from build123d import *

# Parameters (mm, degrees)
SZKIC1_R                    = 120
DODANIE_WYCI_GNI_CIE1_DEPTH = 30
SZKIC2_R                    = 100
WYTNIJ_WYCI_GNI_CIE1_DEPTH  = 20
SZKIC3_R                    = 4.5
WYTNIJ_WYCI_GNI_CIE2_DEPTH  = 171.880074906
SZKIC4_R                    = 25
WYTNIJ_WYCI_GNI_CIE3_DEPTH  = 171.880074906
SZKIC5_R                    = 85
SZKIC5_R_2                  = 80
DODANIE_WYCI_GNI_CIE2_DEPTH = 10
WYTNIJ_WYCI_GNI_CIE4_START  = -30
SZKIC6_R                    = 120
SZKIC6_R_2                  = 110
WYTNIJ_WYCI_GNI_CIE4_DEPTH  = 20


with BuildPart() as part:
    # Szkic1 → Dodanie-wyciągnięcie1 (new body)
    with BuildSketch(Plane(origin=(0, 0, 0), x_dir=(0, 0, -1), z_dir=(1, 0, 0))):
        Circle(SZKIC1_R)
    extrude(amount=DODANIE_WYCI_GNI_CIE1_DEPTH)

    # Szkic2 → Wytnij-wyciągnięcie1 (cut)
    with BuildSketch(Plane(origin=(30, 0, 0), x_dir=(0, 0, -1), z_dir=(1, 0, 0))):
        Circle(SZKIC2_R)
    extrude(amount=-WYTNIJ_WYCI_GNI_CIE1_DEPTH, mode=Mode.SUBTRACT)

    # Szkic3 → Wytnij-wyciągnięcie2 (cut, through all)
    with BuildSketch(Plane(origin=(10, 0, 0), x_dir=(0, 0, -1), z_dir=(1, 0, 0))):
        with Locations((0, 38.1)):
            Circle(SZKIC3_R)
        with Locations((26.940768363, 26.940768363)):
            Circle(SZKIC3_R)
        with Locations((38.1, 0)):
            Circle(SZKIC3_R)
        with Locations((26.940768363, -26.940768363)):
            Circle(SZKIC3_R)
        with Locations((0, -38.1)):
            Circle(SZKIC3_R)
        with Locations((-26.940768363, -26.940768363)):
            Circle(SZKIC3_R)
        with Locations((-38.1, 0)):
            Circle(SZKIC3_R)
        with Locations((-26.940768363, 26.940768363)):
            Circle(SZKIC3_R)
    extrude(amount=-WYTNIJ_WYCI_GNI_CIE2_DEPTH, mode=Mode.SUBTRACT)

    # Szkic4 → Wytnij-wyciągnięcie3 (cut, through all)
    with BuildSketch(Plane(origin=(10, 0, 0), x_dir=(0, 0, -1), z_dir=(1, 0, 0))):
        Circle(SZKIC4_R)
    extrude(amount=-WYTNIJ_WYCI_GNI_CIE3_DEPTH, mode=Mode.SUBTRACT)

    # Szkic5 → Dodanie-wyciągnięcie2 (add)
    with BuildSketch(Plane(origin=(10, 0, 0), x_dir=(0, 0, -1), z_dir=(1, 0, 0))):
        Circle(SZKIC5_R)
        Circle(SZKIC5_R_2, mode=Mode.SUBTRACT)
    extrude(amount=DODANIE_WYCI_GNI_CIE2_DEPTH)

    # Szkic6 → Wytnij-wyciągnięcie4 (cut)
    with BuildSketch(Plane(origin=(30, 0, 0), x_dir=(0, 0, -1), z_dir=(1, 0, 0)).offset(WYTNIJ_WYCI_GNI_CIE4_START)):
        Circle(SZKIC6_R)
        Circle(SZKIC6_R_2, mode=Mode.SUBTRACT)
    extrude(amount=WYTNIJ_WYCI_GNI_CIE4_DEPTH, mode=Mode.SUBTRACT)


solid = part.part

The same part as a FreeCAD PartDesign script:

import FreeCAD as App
import Part
import Sketcher

doc = App.newDocument("Part")
params = doc.addObject("Spreadsheet::Sheet", "Params")
for row, (alias, value) in enumerate([
    ("sketch1_diameter", "240 mm"),
    ("pad1_length", "30 mm"),
    ("sketch2_diameter", "200 mm"),
    ("pocket1_length", "20 mm"),
    ("sketch3_diameter", "9 mm"),
    ("sketch4_diameter", "50 mm"),
    ("sketch5_diameter", "170 mm"),
    ("sketch5_diameter2", "160 mm"),
    ("pad2_length", "10 mm"),
    ("sketch6_diameter", "240 mm"),
    ("sketch6_diameter2", "220 mm"),
    ("pocket4_length", "20 mm"),
], start=1):
    params.set(f"A{row}", alias)
    params.set(f"B{row}", "=" + value)
    params.setAlias(f"B{row}", alias)

body = doc.addObject("PartDesign::Body", "Body")

sketch1 = body.newObject("Sketcher::SketchObject", "Sketch")
sketch1.AttachmentSupport = (doc.getObject("YZ_Plane"), [""])
sketch1.MapMode = "FlatFace"
sketch1.addGeometry(Part.Circle(App.Vector(0, 0, 0), App.Vector(0, 0, 1), 120), False)
sketch1.addConstraint(Sketcher.Constraint("Coincident", 0, 3, -1, 1))
sketch1.addConstraint(Sketcher.Constraint("Diameter", 0, 240.0))
sketch1.setExpression("Constraints[1]", "Params.sketch1_diameter")
pad1 = body.newObject("PartDesign::Pad", "Pad")
pad1.Profile = sketch1
pad1.setExpression("Length", "Params.pad1_length")

sketch2 = body.newObject("Sketcher::SketchObject", "Sketch001")
sketch2.AttachmentSupport = (doc.getObject("YZ_Plane"), [""])
sketch2.MapMode = "FlatFace"
sketch2.AttachmentOffset = App.Placement(App.Vector(0, 0, 30), App.Rotation())
sketch2.addGeometry(Part.Circle(App.Vector(0, 0, 0), App.Vector(0, 0, 1), 100), False)
sketch2.addConstraint(Sketcher.Constraint("Coincident", 0, 3, -1, 1))
sketch2.addConstraint(Sketcher.Constraint("Diameter", 0, 200.0))
sketch2.setExpression("Constraints[1]", "Params.sketch2_diameter")
pocket1 = body.newObject("PartDesign::Pocket", "Pocket")
pocket1.Profile = sketch2
pocket1.setExpression("Length", "Params.pocket1_length")

sketch3 = body.newObject("Sketcher::SketchObject", "Sketch002")
sketch3.AttachmentSupport = (doc.getObject("YZ_Plane"), [""])
sketch3.MapMode = "FlatFace"
sketch3.AttachmentOffset = App.Placement(App.Vector(0, 0, 10), App.Rotation())
sketch3.addGeometry(Part.Circle(App.Vector(38.1, 0, 0), App.Vector(0, 0, 1), 4.5), False)
sketch3.addGeometry(Part.Circle(App.Vector(26.940768, -26.940768, 0), App.Vector(0, 0, 1), 4.5), False)
sketch3.addGeometry(Part.Circle(App.Vector(0, -38.1, 0), App.Vector(0, 0, 1), 4.5), False)
sketch3.addGeometry(Part.Circle(App.Vector(-26.940768, -26.940768, 0), App.Vector(0, 0, 1), 4.5), False)
sketch3.addGeometry(Part.Circle(App.Vector(-38.1, 0, 0), App.Vector(0, 0, 1), 4.5), False)
sketch3.addGeometry(Part.Circle(App.Vector(-26.940768, 26.940768, 0), App.Vector(0, 0, 1), 4.5), False)
sketch3.addGeometry(Part.Circle(App.Vector(0, 38.1, 0), App.Vector(0, 0, 1), 4.5), False)
sketch3.addGeometry(Part.Circle(App.Vector(26.940768, 26.940768, 0), App.Vector(0, 0, 1), 4.5), False)
sketch3.addConstraint(Sketcher.Constraint("Equal", 0, 1))
sketch3.addConstraint(Sketcher.Constraint("Equal", 1, 2))
sketch3.addConstraint(Sketcher.Constraint("Equal", 2, 3))
sketch3.addConstraint(Sketcher.Constraint("Equal", 3, 4))
sketch3.addConstraint(Sketcher.Constraint("Equal", 4, 5))
sketch3.addConstraint(Sketcher.Constraint("Equal", 5, 6))
sketch3.addConstraint(Sketcher.Constraint("Equal", 6, 7))
sketch3.addConstraint(Sketcher.Constraint("Symmetric", 0, 3, 4, 3, -1, 1))
sketch3.addConstraint(Sketcher.Constraint("Symmetric", 1, 3, 5, 3, -1, 1))
sketch3.addConstraint(Sketcher.Constraint("Symmetric", 2, 3, 6, 3, -1, 1))
sketch3.addConstraint(Sketcher.Constraint("Symmetric", 3, 3, 7, 3, -1, 1))
sketch3.addConstraint(Sketcher.Constraint("Symmetric", 1, 3, 3, 3, -2))
sketch3.addConstraint(Sketcher.Constraint("PointOnObject", 0, 3, -1))
sketch3.addConstraint(Sketcher.Constraint("PointOnObject", 2, 3, -2))
sketch3.addConstraint(Sketcher.Constraint("Diameter", 0, 9.0))
sketch3.addConstraint(Sketcher.Constraint("DistanceX", -1, 1, 0, 3, 38.1))
sketch3.addConstraint(Sketcher.Constraint("DistanceY", 2, 3, -1, 1, 38.1))
sketch3.addConstraint(Sketcher.Constraint("DistanceX", -1, 1, 1, 3, 26.940768))
sketch3.addConstraint(Sketcher.Constraint("DistanceY", 1, 3, -1, 1, 26.940768))
sketch3.setExpression("Constraints[14]", "Params.sketch3_diameter")
pocket2 = body.newObject("PartDesign::Pocket", "Pocket001")
pocket2.Profile = sketch3
pocket2.Type = "ThroughAll"

sketch4 = body.newObject("Sketcher::SketchObject", "Sketch003")
sketch4.AttachmentSupport = (doc.getObject("YZ_Plane"), [""])
sketch4.MapMode = "FlatFace"
sketch4.AttachmentOffset = App.Placement(App.Vector(0, 0, 10), App.Rotation())
sketch4.addGeometry(Part.Circle(App.Vector(0, 0, 0), App.Vector(0, 0, 1), 25), False)
sketch4.addConstraint(Sketcher.Constraint("Coincident", 0, 3, -1, 1))
sketch4.addConstraint(Sketcher.Constraint("Diameter", 0, 50.0))
sketch4.setExpression("Constraints[1]", "Params.sketch4_diameter")
pocket3 = body.newObject("PartDesign::Pocket", "Pocket002")
pocket3.Profile = sketch4
pocket3.Type = "ThroughAll"

sketch5 = body.newObject("Sketcher::SketchObject", "Sketch004")
sketch5.AttachmentSupport = (doc.getObject("YZ_Plane"), [""])
sketch5.MapMode = "FlatFace"
sketch5.AttachmentOffset = App.Placement(App.Vector(0, 0, 10), App.Rotation())
sketch5.addGeometry(Part.Circle(App.Vector(0, 0, 0), App.Vector(0, 0, 1), 85), False)
sketch5.addGeometry(Part.Circle(App.Vector(0, 0, 0), App.Vector(0, 0, 1), 80), False)
sketch5.addConstraint(Sketcher.Constraint("Coincident", 0, 3, -1, 1))
sketch5.addConstraint(Sketcher.Constraint("Coincident", 1, 3, -1, 1))
sketch5.addConstraint(Sketcher.Constraint("Diameter", 0, 170.0))
sketch5.addConstraint(Sketcher.Constraint("Diameter", 1, 160.0))
sketch5.setExpression("Constraints[2]", "Params.sketch5_diameter")
sketch5.setExpression("Constraints[3]", "Params.sketch5_diameter2")
pad2 = body.newObject("PartDesign::Pad", "Pad001")
pad2.Profile = sketch5
pad2.setExpression("Length", "Params.pad2_length")

sketch6 = body.newObject("Sketcher::SketchObject", "Sketch005")
sketch6.AttachmentSupport = (doc.getObject("YZ_Plane"), [""])
sketch6.MapMode = "FlatFace"
sketch6.addGeometry(Part.Circle(App.Vector(0, 0, 0), App.Vector(0, 0, 1), 120), False)
sketch6.addGeometry(Part.Circle(App.Vector(0, 0, 0), App.Vector(0, 0, 1), 110), False)
sketch6.addConstraint(Sketcher.Constraint("Coincident", 0, 3, -1, 1))
sketch6.addConstraint(Sketcher.Constraint("Coincident", 1, 3, -1, 1))
sketch6.addConstraint(Sketcher.Constraint("Diameter", 0, 240.0))
sketch6.addConstraint(Sketcher.Constraint("Diameter", 1, 220.0))
sketch6.setExpression("Constraints[2]", "Params.sketch6_diameter")
sketch6.setExpression("Constraints[3]", "Params.sketch6_diameter2")
pocket4 = body.newObject("PartDesign::Pocket", "Pocket003")
pocket4.Profile = sketch6
pocket4.setExpression("Length", "Params.pocket4_length")
pocket4.Reversed = True

doc.recompute()
